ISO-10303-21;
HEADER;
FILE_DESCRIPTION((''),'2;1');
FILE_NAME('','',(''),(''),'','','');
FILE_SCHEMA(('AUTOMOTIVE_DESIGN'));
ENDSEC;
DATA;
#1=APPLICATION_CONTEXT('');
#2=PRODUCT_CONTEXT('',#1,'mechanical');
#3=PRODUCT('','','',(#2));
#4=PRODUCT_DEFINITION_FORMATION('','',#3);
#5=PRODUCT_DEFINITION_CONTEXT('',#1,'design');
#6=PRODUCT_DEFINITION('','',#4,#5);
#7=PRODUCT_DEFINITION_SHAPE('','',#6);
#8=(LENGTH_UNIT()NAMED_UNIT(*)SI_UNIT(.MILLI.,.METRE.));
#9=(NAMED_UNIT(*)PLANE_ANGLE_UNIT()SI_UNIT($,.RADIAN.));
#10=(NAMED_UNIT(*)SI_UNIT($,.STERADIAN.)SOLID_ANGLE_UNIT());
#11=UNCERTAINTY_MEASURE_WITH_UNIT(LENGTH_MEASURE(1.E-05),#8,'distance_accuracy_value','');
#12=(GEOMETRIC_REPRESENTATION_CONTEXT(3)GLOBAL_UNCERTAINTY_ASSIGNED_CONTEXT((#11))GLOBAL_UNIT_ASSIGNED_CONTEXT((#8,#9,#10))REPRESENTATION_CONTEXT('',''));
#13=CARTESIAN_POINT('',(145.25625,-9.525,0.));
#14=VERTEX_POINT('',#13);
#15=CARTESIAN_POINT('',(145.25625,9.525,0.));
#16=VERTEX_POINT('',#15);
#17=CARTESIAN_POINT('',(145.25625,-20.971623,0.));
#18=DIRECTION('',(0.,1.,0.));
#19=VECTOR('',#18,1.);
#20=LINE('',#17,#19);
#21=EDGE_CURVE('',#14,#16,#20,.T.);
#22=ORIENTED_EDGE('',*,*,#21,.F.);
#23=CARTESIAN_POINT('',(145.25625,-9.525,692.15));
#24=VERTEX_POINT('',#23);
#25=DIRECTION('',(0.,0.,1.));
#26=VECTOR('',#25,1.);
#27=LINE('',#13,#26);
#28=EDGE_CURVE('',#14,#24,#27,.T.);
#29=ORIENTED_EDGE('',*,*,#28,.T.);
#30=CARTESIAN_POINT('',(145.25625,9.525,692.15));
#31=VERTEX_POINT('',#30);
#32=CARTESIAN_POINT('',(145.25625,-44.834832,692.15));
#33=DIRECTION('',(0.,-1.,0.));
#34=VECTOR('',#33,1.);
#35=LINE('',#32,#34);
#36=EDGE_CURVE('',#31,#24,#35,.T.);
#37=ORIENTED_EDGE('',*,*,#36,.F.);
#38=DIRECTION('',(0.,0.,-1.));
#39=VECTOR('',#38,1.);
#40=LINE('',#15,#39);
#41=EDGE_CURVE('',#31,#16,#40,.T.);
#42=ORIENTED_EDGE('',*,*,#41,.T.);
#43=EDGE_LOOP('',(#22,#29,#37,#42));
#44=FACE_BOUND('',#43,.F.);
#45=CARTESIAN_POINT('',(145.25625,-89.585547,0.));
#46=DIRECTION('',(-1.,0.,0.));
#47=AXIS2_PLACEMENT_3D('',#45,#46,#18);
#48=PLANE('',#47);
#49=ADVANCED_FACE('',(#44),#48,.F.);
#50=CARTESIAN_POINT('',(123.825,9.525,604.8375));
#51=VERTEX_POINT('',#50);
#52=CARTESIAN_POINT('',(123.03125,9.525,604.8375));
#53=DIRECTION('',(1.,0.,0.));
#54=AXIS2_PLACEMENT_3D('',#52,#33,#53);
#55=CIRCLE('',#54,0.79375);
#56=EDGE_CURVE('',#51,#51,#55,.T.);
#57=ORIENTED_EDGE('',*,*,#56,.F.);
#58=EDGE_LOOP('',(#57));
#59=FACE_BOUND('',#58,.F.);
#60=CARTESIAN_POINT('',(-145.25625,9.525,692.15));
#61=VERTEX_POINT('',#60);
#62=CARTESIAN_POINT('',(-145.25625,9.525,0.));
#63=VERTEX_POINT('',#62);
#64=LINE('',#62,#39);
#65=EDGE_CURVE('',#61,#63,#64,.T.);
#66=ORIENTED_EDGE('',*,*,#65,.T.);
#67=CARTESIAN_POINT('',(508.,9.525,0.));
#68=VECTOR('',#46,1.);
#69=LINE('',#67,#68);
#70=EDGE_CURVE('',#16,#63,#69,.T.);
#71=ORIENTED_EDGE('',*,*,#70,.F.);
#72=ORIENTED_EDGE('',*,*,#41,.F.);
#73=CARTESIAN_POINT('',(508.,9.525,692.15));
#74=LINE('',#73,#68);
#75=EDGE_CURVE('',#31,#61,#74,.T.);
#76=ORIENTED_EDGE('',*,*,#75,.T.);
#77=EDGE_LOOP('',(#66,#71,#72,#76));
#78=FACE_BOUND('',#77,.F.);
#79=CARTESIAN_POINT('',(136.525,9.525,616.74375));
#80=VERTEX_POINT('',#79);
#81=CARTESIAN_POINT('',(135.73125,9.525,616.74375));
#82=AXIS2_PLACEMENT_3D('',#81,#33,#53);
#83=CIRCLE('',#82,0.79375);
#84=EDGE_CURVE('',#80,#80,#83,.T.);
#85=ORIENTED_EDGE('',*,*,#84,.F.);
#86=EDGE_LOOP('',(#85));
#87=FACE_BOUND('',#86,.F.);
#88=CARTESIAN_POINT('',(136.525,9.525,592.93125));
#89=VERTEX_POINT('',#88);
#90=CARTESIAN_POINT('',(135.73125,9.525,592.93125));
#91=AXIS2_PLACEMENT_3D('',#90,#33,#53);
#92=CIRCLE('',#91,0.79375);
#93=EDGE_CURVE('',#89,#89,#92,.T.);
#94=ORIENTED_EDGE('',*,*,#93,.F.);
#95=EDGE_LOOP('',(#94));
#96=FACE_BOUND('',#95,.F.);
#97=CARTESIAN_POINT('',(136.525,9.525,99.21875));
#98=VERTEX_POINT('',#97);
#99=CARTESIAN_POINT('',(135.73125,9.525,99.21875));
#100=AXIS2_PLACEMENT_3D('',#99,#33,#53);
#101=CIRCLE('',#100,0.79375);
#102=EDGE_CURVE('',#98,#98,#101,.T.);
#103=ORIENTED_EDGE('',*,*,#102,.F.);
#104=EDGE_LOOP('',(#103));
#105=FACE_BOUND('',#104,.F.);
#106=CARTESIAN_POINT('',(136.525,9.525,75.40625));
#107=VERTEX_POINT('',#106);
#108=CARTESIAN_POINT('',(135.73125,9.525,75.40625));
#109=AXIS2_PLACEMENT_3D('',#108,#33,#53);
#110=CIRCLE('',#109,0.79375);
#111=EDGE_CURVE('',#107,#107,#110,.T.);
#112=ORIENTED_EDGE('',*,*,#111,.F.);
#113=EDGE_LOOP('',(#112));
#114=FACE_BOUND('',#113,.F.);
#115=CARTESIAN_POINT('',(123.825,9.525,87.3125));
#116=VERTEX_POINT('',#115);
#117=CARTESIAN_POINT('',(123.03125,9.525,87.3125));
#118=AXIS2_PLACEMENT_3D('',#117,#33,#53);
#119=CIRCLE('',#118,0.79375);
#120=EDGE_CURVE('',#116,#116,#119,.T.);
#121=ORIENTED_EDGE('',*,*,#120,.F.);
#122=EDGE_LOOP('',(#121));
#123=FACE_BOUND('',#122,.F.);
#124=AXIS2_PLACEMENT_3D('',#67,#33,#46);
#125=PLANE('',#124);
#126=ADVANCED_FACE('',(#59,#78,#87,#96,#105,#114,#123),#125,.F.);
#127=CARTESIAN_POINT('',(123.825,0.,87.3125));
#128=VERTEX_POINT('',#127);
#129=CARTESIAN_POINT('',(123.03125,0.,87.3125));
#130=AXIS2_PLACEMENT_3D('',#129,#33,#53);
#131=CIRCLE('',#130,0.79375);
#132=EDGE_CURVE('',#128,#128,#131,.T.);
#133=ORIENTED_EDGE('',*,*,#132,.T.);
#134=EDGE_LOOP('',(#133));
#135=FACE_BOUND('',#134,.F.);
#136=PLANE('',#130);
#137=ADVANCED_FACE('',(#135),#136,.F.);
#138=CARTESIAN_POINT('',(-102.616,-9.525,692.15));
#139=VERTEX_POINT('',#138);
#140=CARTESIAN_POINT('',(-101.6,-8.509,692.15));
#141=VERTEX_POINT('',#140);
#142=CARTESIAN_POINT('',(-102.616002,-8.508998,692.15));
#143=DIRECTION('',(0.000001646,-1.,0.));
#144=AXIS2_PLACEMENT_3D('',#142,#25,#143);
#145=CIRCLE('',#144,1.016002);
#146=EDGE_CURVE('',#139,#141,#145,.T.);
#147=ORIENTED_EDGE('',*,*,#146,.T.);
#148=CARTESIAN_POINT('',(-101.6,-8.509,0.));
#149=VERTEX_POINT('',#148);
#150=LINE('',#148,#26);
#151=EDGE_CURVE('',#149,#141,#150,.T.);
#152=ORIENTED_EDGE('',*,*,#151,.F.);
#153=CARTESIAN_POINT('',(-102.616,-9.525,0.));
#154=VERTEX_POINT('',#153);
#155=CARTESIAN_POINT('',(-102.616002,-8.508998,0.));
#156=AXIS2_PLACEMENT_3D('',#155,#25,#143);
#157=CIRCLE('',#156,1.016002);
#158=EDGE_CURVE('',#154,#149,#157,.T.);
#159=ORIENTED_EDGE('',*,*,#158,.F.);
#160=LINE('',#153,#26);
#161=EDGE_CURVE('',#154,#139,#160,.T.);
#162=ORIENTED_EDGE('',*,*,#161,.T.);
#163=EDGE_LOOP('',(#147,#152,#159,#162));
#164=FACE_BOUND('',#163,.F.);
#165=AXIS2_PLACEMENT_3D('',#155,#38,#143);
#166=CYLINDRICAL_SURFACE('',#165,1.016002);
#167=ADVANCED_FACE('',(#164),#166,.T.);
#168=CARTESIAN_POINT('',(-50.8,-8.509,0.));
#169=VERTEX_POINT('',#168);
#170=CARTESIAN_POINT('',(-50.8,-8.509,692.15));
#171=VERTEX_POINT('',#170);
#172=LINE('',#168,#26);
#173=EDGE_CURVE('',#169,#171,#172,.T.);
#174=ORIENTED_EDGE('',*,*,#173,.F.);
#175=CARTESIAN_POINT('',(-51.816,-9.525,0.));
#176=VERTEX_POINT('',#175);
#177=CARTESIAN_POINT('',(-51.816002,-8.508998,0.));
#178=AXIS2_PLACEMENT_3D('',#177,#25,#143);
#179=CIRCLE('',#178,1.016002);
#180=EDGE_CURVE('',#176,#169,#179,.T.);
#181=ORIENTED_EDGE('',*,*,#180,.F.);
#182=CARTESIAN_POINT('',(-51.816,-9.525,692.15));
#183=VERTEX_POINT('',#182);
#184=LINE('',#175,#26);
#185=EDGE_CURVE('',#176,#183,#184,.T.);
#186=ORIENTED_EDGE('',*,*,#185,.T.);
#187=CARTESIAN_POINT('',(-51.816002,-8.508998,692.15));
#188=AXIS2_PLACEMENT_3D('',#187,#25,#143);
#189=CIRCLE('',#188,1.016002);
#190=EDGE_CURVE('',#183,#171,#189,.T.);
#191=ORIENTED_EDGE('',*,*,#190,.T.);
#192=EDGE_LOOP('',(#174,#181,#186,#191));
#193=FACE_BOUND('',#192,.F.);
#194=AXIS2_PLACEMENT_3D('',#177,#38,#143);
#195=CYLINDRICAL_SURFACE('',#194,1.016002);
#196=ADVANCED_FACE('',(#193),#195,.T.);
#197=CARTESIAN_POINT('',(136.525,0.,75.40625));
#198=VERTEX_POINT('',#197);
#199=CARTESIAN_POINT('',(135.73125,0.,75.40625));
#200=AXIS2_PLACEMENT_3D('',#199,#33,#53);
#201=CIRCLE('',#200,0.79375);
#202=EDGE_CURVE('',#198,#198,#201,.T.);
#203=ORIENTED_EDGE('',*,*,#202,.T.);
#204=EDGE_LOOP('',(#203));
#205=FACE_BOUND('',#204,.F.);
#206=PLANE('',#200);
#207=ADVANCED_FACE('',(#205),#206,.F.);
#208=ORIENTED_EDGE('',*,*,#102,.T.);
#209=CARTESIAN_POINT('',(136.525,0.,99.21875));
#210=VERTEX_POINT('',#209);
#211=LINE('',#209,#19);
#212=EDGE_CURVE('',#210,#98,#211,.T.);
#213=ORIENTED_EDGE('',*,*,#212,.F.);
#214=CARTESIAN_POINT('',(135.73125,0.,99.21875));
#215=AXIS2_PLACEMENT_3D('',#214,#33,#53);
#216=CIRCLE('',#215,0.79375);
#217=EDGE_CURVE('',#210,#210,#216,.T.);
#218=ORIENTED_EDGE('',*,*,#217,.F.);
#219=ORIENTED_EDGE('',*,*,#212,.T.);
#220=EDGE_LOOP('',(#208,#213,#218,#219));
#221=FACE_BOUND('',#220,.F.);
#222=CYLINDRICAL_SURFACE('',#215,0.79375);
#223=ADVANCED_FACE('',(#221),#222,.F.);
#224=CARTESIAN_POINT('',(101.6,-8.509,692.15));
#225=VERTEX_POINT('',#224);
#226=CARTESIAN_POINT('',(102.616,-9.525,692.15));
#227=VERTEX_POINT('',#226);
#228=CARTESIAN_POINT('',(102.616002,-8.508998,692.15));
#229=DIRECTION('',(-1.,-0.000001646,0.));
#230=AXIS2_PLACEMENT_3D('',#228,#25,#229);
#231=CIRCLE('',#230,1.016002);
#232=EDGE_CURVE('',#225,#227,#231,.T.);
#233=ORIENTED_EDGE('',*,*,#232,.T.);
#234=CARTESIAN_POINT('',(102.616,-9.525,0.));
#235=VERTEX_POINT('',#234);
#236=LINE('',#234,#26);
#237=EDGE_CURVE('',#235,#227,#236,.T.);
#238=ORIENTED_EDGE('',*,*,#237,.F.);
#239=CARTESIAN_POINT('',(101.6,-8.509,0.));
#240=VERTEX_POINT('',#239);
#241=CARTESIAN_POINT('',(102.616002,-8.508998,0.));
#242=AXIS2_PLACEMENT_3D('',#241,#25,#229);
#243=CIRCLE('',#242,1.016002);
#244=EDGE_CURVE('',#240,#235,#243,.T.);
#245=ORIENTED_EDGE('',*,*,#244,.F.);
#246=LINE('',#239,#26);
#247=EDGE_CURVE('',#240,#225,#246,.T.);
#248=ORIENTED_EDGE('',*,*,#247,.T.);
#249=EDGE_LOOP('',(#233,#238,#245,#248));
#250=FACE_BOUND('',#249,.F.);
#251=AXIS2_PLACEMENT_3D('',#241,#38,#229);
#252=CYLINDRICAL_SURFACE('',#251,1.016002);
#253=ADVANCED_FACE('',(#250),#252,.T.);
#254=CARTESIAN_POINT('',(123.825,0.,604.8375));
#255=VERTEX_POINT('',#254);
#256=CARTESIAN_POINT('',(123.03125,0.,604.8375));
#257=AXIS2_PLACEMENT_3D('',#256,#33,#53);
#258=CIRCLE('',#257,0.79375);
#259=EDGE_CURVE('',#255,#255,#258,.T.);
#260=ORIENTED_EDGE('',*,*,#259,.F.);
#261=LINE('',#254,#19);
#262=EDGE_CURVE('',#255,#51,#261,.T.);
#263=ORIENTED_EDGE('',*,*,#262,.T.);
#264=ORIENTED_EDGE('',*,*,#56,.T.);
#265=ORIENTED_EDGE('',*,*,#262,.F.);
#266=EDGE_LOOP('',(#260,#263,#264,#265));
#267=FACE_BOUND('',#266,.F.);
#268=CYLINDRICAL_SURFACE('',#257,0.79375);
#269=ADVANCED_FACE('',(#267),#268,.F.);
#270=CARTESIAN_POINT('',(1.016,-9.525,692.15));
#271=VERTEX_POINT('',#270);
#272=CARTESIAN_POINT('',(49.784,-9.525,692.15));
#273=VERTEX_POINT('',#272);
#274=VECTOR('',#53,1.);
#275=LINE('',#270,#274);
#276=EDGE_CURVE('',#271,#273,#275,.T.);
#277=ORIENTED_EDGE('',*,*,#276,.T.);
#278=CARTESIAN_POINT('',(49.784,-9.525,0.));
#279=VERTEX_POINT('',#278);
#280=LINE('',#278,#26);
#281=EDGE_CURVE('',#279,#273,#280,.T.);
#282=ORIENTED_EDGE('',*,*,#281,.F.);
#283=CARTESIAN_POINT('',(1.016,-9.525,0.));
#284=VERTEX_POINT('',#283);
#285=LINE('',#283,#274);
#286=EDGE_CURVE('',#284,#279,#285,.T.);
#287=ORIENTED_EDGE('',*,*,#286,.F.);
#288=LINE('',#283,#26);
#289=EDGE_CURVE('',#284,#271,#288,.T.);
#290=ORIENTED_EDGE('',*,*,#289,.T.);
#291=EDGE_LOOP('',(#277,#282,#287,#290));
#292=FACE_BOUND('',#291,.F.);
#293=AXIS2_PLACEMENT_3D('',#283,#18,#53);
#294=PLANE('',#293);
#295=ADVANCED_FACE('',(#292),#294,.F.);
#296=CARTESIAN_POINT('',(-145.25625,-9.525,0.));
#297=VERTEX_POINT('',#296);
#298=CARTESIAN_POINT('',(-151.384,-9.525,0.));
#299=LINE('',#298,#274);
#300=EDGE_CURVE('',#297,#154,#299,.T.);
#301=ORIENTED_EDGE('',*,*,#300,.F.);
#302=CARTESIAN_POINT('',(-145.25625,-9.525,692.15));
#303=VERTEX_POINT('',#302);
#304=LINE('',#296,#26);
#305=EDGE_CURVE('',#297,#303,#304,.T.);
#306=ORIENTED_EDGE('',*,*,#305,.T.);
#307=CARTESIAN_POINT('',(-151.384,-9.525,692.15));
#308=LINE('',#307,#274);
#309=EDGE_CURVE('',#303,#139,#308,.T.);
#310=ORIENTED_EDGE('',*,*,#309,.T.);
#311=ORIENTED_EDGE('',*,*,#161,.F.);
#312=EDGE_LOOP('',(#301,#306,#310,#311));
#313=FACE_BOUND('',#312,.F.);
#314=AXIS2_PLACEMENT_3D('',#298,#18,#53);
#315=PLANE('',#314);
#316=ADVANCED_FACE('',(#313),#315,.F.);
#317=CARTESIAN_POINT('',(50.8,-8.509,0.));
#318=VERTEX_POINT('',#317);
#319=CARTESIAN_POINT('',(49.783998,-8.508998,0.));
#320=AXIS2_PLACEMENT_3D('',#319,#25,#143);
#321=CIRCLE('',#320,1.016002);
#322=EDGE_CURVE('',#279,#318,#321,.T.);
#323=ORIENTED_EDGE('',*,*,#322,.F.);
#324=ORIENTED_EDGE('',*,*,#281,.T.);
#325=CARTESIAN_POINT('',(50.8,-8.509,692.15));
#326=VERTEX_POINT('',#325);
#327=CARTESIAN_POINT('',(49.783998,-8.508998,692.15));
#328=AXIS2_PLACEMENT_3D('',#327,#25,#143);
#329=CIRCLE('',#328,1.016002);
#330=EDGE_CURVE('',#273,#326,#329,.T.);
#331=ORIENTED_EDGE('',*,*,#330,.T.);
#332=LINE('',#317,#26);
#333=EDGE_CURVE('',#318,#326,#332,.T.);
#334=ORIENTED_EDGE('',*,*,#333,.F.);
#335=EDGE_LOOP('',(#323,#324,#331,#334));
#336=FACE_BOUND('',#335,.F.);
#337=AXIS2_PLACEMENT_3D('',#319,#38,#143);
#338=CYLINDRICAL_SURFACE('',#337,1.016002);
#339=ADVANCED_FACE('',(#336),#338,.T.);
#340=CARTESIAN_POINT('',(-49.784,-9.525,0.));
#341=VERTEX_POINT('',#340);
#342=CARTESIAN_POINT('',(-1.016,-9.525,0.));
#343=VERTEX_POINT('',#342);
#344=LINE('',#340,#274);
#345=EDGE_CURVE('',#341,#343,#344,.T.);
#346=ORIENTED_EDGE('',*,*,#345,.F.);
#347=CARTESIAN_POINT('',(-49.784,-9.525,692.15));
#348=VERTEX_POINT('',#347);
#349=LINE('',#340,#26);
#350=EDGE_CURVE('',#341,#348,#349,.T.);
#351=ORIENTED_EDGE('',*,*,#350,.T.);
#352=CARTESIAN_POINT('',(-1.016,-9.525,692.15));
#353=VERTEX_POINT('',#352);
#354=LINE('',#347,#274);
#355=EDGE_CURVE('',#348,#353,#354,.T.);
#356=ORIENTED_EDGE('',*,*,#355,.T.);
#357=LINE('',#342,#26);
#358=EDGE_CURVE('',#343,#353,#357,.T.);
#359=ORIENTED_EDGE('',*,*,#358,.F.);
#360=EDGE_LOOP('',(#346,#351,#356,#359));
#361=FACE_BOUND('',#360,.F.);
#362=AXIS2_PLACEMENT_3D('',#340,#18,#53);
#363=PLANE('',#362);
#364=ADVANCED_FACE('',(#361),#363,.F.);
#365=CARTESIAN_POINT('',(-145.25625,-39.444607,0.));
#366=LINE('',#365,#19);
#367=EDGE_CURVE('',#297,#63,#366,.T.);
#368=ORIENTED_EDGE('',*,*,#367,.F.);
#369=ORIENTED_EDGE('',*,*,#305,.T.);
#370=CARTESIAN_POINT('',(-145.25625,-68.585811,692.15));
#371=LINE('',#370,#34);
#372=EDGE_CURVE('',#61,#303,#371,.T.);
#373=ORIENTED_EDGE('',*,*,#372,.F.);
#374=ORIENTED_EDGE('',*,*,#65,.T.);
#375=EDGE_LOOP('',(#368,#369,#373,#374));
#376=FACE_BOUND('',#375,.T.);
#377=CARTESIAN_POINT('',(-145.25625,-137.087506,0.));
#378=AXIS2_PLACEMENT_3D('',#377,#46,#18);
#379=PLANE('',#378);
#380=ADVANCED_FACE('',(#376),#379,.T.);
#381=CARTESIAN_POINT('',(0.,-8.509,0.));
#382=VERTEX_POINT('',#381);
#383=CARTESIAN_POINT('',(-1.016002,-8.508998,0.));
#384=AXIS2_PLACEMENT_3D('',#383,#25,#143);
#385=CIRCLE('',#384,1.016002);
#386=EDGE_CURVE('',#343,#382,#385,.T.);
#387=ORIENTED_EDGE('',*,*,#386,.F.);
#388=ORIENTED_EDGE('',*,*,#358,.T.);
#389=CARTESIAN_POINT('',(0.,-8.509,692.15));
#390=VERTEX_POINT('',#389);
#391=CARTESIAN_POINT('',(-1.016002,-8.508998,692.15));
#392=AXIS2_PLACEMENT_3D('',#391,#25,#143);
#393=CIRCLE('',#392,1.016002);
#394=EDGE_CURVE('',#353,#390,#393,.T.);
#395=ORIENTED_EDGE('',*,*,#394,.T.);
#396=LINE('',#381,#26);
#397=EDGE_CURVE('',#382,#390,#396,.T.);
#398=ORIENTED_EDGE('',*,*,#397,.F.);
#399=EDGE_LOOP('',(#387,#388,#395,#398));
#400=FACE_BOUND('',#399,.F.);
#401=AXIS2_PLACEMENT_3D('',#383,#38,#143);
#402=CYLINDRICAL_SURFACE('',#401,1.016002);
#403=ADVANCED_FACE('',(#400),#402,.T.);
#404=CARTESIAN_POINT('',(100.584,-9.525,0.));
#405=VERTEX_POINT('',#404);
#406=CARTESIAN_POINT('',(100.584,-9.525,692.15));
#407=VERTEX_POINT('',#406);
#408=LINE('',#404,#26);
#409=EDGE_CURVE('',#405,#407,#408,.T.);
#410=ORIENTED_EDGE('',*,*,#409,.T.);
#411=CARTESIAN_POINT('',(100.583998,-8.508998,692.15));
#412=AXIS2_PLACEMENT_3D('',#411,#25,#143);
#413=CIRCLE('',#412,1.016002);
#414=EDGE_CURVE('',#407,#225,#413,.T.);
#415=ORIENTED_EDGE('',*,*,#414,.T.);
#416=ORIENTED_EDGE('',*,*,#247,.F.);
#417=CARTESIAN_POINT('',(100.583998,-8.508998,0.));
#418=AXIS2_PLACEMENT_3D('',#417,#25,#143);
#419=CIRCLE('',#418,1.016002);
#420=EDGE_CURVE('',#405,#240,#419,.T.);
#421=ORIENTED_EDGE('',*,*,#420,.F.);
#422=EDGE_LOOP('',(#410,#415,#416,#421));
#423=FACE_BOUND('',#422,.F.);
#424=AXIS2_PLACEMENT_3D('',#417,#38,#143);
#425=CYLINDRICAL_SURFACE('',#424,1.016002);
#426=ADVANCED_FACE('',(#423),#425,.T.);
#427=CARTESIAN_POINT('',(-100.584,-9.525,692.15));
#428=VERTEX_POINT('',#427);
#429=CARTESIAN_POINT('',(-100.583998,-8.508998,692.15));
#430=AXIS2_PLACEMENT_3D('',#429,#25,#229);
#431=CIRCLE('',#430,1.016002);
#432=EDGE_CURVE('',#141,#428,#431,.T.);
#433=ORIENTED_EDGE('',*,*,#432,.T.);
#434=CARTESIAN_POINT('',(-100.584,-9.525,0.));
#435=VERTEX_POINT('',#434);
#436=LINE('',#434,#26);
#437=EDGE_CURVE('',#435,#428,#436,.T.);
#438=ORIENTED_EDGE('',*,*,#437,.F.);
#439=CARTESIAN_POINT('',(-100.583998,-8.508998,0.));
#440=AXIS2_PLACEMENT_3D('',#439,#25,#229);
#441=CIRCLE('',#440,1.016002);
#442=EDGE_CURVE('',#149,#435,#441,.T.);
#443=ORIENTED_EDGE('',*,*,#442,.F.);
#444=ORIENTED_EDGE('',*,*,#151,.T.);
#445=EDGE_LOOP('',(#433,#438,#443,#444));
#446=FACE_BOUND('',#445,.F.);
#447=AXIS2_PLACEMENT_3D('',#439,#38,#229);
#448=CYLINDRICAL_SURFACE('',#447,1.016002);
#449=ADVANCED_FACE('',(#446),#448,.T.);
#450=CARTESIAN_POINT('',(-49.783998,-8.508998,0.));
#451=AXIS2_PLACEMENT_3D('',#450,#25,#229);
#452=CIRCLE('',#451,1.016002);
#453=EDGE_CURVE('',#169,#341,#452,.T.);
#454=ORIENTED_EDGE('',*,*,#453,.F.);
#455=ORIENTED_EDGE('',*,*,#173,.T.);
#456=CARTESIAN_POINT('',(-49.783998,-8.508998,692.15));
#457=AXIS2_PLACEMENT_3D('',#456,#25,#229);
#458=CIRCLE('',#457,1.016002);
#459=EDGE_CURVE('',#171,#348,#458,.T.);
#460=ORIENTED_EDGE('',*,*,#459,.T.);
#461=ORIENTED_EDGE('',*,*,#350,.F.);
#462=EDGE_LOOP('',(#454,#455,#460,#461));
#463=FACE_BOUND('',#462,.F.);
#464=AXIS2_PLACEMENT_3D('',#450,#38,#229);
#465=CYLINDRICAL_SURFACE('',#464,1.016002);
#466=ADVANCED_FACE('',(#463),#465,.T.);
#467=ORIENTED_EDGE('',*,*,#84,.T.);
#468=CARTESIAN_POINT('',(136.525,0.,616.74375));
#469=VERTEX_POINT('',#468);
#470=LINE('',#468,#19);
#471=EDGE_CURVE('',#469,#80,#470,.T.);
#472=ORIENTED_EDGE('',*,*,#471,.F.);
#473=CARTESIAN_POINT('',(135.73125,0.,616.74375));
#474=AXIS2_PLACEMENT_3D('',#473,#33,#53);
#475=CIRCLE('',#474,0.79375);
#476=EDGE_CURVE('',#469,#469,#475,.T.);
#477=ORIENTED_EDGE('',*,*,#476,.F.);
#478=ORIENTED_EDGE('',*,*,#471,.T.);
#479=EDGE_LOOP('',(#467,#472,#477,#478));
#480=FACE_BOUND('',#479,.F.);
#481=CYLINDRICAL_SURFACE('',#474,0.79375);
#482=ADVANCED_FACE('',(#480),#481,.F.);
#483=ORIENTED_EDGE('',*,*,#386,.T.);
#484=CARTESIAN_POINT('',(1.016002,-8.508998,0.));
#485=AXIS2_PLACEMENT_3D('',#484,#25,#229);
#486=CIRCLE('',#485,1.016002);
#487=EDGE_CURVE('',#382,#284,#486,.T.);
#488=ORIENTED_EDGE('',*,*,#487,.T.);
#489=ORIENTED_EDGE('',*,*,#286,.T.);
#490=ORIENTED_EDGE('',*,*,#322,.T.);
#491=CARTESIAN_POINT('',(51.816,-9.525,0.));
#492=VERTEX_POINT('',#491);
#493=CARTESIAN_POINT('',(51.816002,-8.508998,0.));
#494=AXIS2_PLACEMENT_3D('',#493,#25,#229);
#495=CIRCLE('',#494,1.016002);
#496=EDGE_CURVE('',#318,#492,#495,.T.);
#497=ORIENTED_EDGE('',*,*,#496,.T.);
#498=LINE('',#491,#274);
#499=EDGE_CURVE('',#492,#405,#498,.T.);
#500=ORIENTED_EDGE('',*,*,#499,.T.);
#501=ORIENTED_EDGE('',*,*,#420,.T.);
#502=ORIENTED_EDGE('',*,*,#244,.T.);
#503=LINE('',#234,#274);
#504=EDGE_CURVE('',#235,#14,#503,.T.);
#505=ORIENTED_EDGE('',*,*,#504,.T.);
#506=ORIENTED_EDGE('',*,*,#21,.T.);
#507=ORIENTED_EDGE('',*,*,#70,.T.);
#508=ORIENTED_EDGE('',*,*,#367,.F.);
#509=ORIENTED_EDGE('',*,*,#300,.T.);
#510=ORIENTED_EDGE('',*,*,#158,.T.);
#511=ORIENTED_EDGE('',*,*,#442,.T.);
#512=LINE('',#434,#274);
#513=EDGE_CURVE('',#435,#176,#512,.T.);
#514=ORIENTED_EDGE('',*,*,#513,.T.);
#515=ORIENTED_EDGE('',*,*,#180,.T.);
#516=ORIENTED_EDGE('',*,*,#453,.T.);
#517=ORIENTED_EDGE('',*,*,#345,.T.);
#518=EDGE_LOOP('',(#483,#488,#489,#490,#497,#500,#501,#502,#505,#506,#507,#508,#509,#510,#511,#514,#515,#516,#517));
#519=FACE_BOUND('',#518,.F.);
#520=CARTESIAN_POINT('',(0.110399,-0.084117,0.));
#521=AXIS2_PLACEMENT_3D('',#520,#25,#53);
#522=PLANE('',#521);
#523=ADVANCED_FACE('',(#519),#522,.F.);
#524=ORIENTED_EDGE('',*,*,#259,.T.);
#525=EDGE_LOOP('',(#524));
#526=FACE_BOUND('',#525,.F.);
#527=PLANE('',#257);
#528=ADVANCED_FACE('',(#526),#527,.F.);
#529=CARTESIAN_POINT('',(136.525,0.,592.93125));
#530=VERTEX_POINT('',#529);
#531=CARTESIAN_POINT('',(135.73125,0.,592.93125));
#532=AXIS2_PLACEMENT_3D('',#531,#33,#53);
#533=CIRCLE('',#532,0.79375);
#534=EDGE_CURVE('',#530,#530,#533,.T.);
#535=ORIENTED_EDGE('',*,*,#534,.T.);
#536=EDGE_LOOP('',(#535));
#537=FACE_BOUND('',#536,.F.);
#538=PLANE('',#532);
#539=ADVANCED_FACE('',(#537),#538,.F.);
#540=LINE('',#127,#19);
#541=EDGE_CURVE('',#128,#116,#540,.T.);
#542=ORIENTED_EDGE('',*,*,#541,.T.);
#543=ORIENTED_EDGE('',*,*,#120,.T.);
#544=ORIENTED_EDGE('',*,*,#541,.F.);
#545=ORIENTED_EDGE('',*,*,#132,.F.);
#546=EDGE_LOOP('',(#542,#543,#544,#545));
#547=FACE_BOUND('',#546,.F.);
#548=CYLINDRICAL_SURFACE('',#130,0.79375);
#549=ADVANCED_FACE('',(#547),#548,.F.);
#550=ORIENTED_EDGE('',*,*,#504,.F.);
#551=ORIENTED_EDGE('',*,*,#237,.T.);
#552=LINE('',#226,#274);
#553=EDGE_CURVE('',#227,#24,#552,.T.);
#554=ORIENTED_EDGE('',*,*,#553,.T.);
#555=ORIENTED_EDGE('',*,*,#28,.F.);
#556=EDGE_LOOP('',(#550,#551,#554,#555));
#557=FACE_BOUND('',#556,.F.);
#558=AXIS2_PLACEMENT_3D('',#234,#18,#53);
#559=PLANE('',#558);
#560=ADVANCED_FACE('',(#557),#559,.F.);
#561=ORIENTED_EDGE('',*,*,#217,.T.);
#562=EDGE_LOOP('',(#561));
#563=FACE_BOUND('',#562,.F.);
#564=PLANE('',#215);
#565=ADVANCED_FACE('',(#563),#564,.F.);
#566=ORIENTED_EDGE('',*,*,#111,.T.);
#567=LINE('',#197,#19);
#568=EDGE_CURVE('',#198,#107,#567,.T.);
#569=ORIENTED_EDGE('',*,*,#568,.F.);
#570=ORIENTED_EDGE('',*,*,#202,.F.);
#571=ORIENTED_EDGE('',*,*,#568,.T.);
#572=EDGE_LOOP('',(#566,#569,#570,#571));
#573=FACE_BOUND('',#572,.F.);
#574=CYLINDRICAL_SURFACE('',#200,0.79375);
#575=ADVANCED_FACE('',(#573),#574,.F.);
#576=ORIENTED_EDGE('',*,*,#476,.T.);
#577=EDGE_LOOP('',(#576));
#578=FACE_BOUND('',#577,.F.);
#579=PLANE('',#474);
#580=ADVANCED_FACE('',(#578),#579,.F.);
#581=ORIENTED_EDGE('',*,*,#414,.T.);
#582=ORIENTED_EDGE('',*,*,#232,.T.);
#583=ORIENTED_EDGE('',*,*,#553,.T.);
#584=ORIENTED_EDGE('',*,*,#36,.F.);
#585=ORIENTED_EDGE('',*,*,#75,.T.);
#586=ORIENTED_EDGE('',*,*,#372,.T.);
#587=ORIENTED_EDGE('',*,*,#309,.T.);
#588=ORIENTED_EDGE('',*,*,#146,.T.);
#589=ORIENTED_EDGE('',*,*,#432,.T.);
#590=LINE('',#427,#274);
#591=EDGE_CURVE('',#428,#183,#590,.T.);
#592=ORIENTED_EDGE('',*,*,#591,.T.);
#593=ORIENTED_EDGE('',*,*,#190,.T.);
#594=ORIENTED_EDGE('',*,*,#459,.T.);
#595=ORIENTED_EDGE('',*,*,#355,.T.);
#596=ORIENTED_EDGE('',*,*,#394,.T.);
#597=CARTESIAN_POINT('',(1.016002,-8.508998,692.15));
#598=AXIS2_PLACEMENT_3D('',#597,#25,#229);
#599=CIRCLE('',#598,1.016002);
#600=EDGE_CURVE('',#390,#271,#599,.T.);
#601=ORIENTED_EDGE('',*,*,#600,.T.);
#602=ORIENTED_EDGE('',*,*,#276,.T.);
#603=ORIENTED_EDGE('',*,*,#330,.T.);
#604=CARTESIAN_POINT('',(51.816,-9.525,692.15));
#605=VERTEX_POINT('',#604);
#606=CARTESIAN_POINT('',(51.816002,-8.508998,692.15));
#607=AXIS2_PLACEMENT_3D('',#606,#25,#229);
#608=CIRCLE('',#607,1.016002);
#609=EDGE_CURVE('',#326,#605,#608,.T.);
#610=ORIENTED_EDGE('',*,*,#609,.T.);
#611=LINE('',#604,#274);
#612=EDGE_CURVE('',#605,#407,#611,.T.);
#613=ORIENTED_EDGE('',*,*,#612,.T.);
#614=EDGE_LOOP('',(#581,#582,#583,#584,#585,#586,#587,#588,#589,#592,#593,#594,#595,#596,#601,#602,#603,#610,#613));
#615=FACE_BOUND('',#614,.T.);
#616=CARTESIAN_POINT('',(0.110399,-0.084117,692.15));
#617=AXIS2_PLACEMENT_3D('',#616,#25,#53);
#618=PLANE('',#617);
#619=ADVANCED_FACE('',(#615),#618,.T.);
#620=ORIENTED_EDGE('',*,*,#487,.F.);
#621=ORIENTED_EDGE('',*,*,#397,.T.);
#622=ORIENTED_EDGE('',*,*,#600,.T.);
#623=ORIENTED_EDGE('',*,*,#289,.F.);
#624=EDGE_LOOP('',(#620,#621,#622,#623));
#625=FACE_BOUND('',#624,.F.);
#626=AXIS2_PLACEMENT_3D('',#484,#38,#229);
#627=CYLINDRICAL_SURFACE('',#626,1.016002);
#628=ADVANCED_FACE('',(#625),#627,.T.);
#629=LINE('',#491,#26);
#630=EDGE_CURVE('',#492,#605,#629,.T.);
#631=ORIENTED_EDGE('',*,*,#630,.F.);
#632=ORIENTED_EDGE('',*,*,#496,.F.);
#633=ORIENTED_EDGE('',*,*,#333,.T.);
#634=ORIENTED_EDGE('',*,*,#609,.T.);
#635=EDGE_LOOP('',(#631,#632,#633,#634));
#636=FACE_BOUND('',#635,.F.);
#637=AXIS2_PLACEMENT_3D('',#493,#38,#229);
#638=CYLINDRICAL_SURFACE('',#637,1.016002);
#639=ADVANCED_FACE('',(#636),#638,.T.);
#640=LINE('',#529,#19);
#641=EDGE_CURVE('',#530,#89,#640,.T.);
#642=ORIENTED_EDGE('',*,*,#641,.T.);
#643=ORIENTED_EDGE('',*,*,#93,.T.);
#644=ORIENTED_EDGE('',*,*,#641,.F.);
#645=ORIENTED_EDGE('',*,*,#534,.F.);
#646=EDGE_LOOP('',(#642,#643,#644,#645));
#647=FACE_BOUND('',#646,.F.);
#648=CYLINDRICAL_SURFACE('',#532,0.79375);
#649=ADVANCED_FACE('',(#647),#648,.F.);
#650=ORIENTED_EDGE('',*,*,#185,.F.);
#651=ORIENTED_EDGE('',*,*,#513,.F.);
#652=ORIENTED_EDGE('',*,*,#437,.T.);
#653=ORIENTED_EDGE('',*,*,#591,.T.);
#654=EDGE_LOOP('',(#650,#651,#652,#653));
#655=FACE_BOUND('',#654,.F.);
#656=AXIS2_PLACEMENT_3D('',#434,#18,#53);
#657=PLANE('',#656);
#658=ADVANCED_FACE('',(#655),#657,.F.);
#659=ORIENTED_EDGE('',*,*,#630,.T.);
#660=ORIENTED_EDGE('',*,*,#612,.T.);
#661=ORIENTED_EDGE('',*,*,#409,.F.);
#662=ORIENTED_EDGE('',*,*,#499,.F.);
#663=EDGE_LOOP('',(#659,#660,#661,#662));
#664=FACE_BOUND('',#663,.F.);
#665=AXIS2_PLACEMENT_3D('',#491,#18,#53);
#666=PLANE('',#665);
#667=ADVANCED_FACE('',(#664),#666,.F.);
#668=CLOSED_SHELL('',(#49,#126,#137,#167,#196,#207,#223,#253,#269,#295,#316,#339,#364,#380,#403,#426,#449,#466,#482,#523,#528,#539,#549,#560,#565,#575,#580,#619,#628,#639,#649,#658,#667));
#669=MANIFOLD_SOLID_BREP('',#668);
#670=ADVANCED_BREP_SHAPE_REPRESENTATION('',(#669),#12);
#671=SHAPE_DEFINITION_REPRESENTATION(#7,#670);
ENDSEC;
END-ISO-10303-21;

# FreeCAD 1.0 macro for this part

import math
import FreeCAD as App
import Part
import Sketcher

V = App.Vector
Q = App.Units.Quantity


def add_polygon(sketch, points):
    """Adds a closed chain of lines whose ends are joined by coincident constraints."""
    first, n = sketch.GeometryCount, len(points)
    for a, b in zip(points, points[1:] + points[:1]):
        sketch.addGeometry(Part.LineSegment(App.Vector(*a, 0), App.Vector(*b, 0)), False)
    for i in range(n):
        sketch.addConstraint(Sketcher.Constraint("Coincident", first + i, 2, first + (i + 1) % n, 1))

doc = App.newDocument("Part")
body = doc.addObject("PartDesign::Body", "Body")

sketch1 = body.newObject("Sketcher::SketchObject", "Sketch")
sketch1.AttachmentSupport = (doc.getObject("XY_Plane"), [""])
sketch1.MapMode = "FlatFace"
sketch1.addGeometry(Part.LineSegment(V(458.2, -9.5, 0), V(508, -9.5, 0)), False)
sketch1.addGeometry(Part.LineSegment(V(508, -9.5, 0), V(508, 9.5, 0)), False)
sketch1.addGeometry(Part.LineSegment(V(508, 9.5, 0), V(-508, 9.5, 0)), False)
sketch1.addGeometry(Part.LineSegment(V(-508, 9.5, 0), V(-508, -9.5, 0)), False)
sketch1.addGeometry(Part.LineSegment(V(-508, -9.5, 0), V(-458.2, -9.5, 0)), False)
sketch1.addGeometry(Part.ArcOfCircle(Part.Circle(V(-458.2, -8.5, 0), V(0, 0, 1), 1), math.radians(-90), math.radians(0)), False)
sketch1.addGeometry(Part.ArcOfCircle(Part.Circle(V(-456.2, -8.5, 0), V(0, 0, 1), 1), math.radians(-180), math.radians(-90)), False)
sketch1.addGeometry(Part.LineSegment(V(-456.2, -9.5, 0), V(-407.4, -9.5, 0)), False)
sketch1.addGeometry(Part.ArcOfCircle(Part.Circle(V(-407.4, -8.5, 0), V(0, 0, 1), 1), math.radians(-90), math.radians(0)), False)
sketch1.addGeometry(Part.ArcOfCircle(Part.Circle(V(-405.4, -8.5, 0), V(0, 0, 1), 1), math.radians(-180), math.radians(-90)), False)
sketch1.addGeometry(Part.LineSegment(V(-405.4, -9.5, 0), V(-356.6, -9.5, 0)), False)
sketch1.addGeometry(Part.ArcOfCircle(Part.Circle(V(-356.6, -8.5, 0), V(0, 0, 1), 1), math.radians(-90), math.radians(0)), False)
sketch1.addGeometry(Part.ArcOfCircle(Part.Circle(V(-354.6, -8.5, 0), V(0, 0, 1), 1), math.radians(-180), math.radians(-90)), False)
sketch1.addGeometry(Part.LineSegment(V(-354.6, -9.5, 0), V(-305.8, -9.5, 0)), False)
sketch1.addGeometry(Part.ArcOfCircle(Part.Circle(V(-305.8, -8.5, 0), V(0, 0, 1), 1), math.radians(-90), math.radians(0)), False)
sketch1.addGeometry(Part.ArcOfCircle(Part.Circle(V(-303.8, -8.5, 0), V(0, 0, 1), 1), math.radians(-180), math.radians(-90)), False)
sketch1.addGeometry(Part.LineSegment(V(-303.8, -9.5, 0), V(-255, -9.5, 0)), False)
sketch1.addGeometry(Part.ArcOfCircle(Part.Circle(V(-255, -8.5, 0), V(0, 0, 1), 1), math.radians(-90), math.radians(0)), False)
sketch1.addGeometry(Part.ArcOfCircle(Part.Circle(V(-253, -8.5, 0), V(0, 0, 1), 1), math.radians(-180), math.radians(-90)), False)
sketch1.addGeometry(Part.LineSegment(V(-253, -9.5, 0), V(-204.2, -9.5, 0)), False)
sketch1.addGeometry(Part.ArcOfCircle(Part.Circle(V(-204.2, -8.5, 0), V(0, 0, 1), 1), math.radians(-90), math.radians(0)), False)
sketch1.addGeometry(Part.ArcOfCircle(Part.Circle(V(-202.2, -8.5, 0), V(0, 0, 1), 1), math.radians(-180), math.radians(-90)), False)
sketch1.addGeometry(Part.LineSegment(V(-202.2, -9.5, 0), V(-153.4, -9.5, 0)), False)
sketch1.addGeometry(Part.ArcOfCircle(Part.Circle(V(-153.4, -8.5, 0), V(0, 0, 1), 1), math.radians(-90), math.radians(0)), False)
sketch1.addGeometry(Part.ArcOfCircle(Part.Circle(V(-151.4, -8.5, 0), V(0, 0, 1), 1), math.radians(-180), math.radians(-90)), False)
sketch1.addGeometry(Part.LineSegment(V(-151.4, -9.5, 0), V(-102.6, -9.5, 0)), False)
sketch1.addGeometry(Part.ArcOfCircle(Part.Circle(V(-102.6, -8.5, 0), V(0, 0, 1), 1), math.radians(-90), math.radians(0)), False)
sketch1.addGeometry(Part.ArcOfCircle(Part.Circle(V(-100.6, -8.5, 0), V(0, 0, 1), 1), math.radians(-180), math.radians(-90)), False)
sketch1.addGeometry(Part.LineSegment(V(-100.6, -9.5, 0), V(-51.8, -9.5, 0)), False)
sketch1.addGeometry(Part.ArcOfCircle(Part.Circle(V(-51.8, -8.5, 0), V(0, 0, 1), 1), math.radians(-90), math.radians(0)), False)
sketch1.addGeometry(Part.ArcOfCircle(Part.Circle(V(-49.8, -8.5, 0), V(0, 0, 1), 1), math.radians(-180), math.radians(-90)), False)
sketch1.addGeometry(Part.LineSegment(V(-49.8, -9.5, 0), V(-1, -9.5, 0)), False)
sketch1.addGeometry(Part.ArcOfCircle(Part.Circle(V(-1, -8.5, 0), V(0, 0, 1), 1), math.radians(-90), math.radians(0)), False)
sketch1.addGeometry(Part.ArcOfCircle(Part.Circle(V(1, -8.5, 0), V(0, 0, 1), 1), math.radians(-180), math.radians(-90)), False)
sketch1.addGeometry(Part.LineSegment(V(1, -9.5, 0), V(49.8, -9.5, 0)), False)
sketch1.addGeometry(Part.ArcOfCircle(Part.Circle(V(49.8, -8.5, 0), V(0, 0, 1), 1), math.radians(-90), math.radians(0)), False)
sketch1.addGeometry(Part.ArcOfCircle(Part.Circle(V(51.8, -8.5, 0), V(0, 0, 1), 1), math.radians(-180), math.radians(-90)), False)
sketch1.addGeometry(Part.LineSegment(V(51.8, -9.5, 0), V(100.6, -9.5, 0)), False)
sketch1.addGeometry(Part.ArcOfCircle(Part.Circle(V(100.6, -8.5, 0), V(0, 0, 1), 1), math.radians(-90), math.radians(0)), False)
sketch1.addGeometry(Part.ArcOfCircle(Part.Circle(V(102.6, -8.5, 0), V(0, 0, 1), 1), math.radians(-180), math.radians(-90)), False)
sketch1.addGeometry(Part.LineSegment(V(102.6, -9.5, 0), V(151.4, -9.5, 0)), False)
sketch1.addGeometry(Part.ArcOfCircle(Part.Circle(V(151.4, -8.5, 0), V(0, 0, 1), 1), math.radians(-90), math.radians(0)), False)
sketch1.addGeometry(Part.ArcOfCircle(Part.Circle(V(153.4, -8.5, 0), V(0, 0, 1), 1), math.radians(-180), math.radians(-90)), False)
sketch1.addGeometry(Part.LineSegment(V(153.4, -9.5, 0), V(202.2, -9.5, 0)), False)
sketch1.addGeometry(Part.ArcOfCircle(Part.Circle(V(202.2, -8.5, 0), V(0, 0, 1), 1), math.radians(-90), math.radians(0)), False)
sketch1.addGeometry(Part.ArcOfCircle(Part.Circle(V(204.2, -8.5, 0), V(0, 0, 1), 1), math.radians(-180), math.radians(-90)), False)
sketch1.addGeometry(Part.LineSegment(V(204.2, -9.5, 0), V(253, -9.5, 0)), False)
sketch1.addGeometry(Part.ArcOfCircle(Part.Circle(V(253, -8.5, 0), V(0, 0, 1), 1), math.radians(-90), math.radians(0)), False)
sketch1.addGeometry(Part.ArcOfCircle(Part.Circle(V(255, -8.5, 0), V(0, 0, 1), 1), math.radians(-180), math.radians(-90)), False)
sketch1.addGeometry(Part.LineSegment(V(255, -9.5, 0), V(303.8, -9.5, 0)), False)
sketch1.addGeometry(Part.ArcOfCircle(Part.Circle(V(303.8, -8.5, 0), V(0, 0, 1), 1), math.radians(-90), math.radians(0)), False)
sketch1.addGeometry(Part.ArcOfCircle(Part.Circle(V(305.8, -8.5, 0), V(0, 0, 1), 1), math.radians(-180), math.radians(-90)), False)
sketch1.addGeometry(Part.LineSegment(V(305.8, -9.5, 0), V(354.6, -9.5, 0)), False)
sketch1.addGeometry(Part.ArcOfCircle(Part.Circle(V(354.6, -8.5, 0), V(0, 0, 1), 1), math.radians(-90), math.radians(0)), False)
sketch1.addGeometry(Part.ArcOfCircle(Part.Circle(V(356.6, -8.5, 0), V(0, 0, 1), 1), math.radians(-180), math.radians(-90)), False)
sketch1.addGeometry(Part.LineSegment(V(356.6, -9.5, 0), V(405.4, -9.5, 0)), False)
sketch1.addGeometry(Part.ArcOfCircle(Part.Circle(V(405.4, -8.5, 0), V(0, 0, 1), 1), math.radians(-90), math.radians(0)), False)
sketch1.addGeometry(Part.ArcOfCircle(Part.Circle(V(407.4, -8.5, 0), V(0, 0, 1), 1), math.radians(-180), math.radians(-90)), False)
sketch1.addGeometry(Part.LineSegment(V(407.4, -9.5, 0), V(456.2, -9.5, 0)), False)
sketch1.addGeometry(Part.ArcOfCircle(Part.Circle(V(456.2, -8.5, 0), V(0, 0, 1), 1), math.radians(-90), math.radians(0)), False)
sketch1.addGeometry(Part.ArcOfCircle(Part.Circle(V(458.2, -8.5, 0), V(0, 0, 1), 1), math.radians(-180), math.radians(-90)), False)
sketch1.addConstraint(Sketcher.Constraint("Coincident", 0, 2, 1, 1))
sketch1.addConstraint(Sketcher.Constraint("Coincident", 1, 2, 2, 1))
sketch1.addConstraint(Sketcher.Constraint("Coincident", 2, 2, 3, 1))
sketch1.addConstraint(Sketcher.Constraint("Coincident", 3, 2, 4, 1))
sketch1.addConstraint(Sketcher.Constraint("Tangent", 4, 2, 5, 1))
sketch1.addConstraint(Sketcher.Constraint("Coincident", 5, 2, 6, 1))
sketch1.addConstraint(Sketcher.Constraint("Tangent", 6, 2, 7, 1))
sketch1.addConstraint(Sketcher.Constraint("Tangent", 7, 2, 8, 1))
sketch1.addConstraint(Sketcher.Constraint("Coincident", 8, 2, 9, 1))
sketch1.addConstraint(Sketcher.Constraint("Tangent", 9, 2, 10, 1))
sketch1.addConstraint(Sketcher.Constraint("Tangent", 10, 2, 11, 1))
sketch1.addConstraint(Sketcher.Constraint("Coincident", 11, 2, 12, 1))
sketch1.addConstraint(Sketcher.Constraint("Tangent", 12, 2, 13, 1))
sketch1.addConstraint(Sketcher.Constraint("Tangent", 13, 2, 14, 1))
sketch1.addConstraint(Sketcher.Constraint("Coincident", 14, 2, 15, 1))
sketch1.addConstraint(Sketcher.Constraint("Tangent", 15, 2, 16, 1))
sketch1.addConstraint(Sketcher.Constraint("Tangent", 16, 2, 17, 1))
sketch1.addConstraint(Sketcher.Constraint("Coincident", 17, 2, 18, 1))
sketch1.addConstraint(Sketcher.Constraint("Tangent", 18, 2, 19, 1))
sketch1.addConstraint(Sketcher.Constraint("Tangent", 19, 2, 20, 1))
sketch1.addConstraint(Sketcher.Constraint("Coincident", 20, 2, 21, 1))
sketch1.addConstraint(Sketcher.Constraint("Tangent", 21, 2, 22, 1))
sketch1.addConstraint(Sketcher.Constraint("Tangent", 22, 2, 23, 1))
sketch1.addConstraint(Sketcher.Constraint("Coincident", 23, 2, 24, 1))
sketch1.addConstraint(Sketcher.Constraint("Tangent", 24, 2, 25, 1))
sketch1.addConstraint(Sketcher.Constraint("Tangent", 25, 2, 26, 1))
sketch1.addConstraint(Sketcher.Constraint("Coincident", 26, 2, 27, 1))
sketch1.addConstraint(Sketcher.Constraint("Tangent", 27, 2, 28, 1))
sketch1.addConstraint(Sketcher.Constraint("Tangent", 28, 2, 29, 1))
sketch1.addConstraint(Sketcher.Constraint("Coincident", 29, 2, 30, 1))
sketch1.addConstraint(Sketcher.Constraint("Tangent", 30, 2, 31, 1))
sketch1.addConstraint(Sketcher.Constraint("Tangent", 31, 2, 32, 1))
sketch1.addConstraint(Sketcher.Constraint("Coincident", 32, 2, 33, 1))
sketch1.addConstraint(Sketcher.Constraint("Tangent", 33, 2, 34, 1))
sketch1.addConstraint(Sketcher.Constraint("Tangent", 34, 2, 35, 1))
sketch1.addConstraint(Sketcher.Constraint("Coincident", 35, 2, 36, 1))
sketch1.addConstraint(Sketcher.Constraint("Tangent", 36, 2, 37, 1))
sketch1.addConstraint(Sketcher.Constraint("Tangent", 37, 2, 38, 1))
sketch1.addConstraint(Sketcher.Constraint("Coincident", 38, 2, 39, 1))
sketch1.addConstraint(Sketcher.Constraint("Tangent", 39, 2, 40, 1))
sketch1.addConstraint(Sketcher.Constraint("Tangent", 40, 2, 41, 1))
sketch1.addConstraint(Sketcher.Constraint("Coincident", 41, 2, 42, 1))
sketch1.addConstraint(Sketcher.Constraint("Tangent", 42, 2, 43, 1))
sketch1.addConstraint(Sketcher.Constraint("Tangent", 43, 2, 44, 1))
sketch1.addConstraint(Sketcher.Constraint("Coincident", 44, 2, 45, 1))
sketch1.addConstraint(Sketcher.Constraint("Tangent", 45, 2, 46, 1))
sketch1.addConstraint(Sketcher.Constraint("Tangent", 46, 2, 47, 1))
sketch1.addConstraint(Sketcher.Constraint("Coincident", 47, 2, 48, 1))
sketch1.addConstraint(Sketcher.Constraint("Tangent", 48, 2, 49, 1))
sketch1.addConstraint(Sketcher.Constraint("Tangent", 49, 2, 50, 1))
sketch1.addConstraint(Sketcher.Constraint("Coincident", 50, 2, 51, 1))
sketch1.addConstraint(Sketcher.Constraint("Tangent", 51, 2, 52, 1))
sketch1.addConstraint(Sketcher.Constraint("Tangent", 52, 2, 53, 1))
sketch1.addConstraint(Sketcher.Constraint("Coincident", 53, 2, 54, 1))
sketch1.addConstraint(Sketcher.Constraint("Tangent", 54, 2, 55, 1))
sketch1.addConstraint(Sketcher.Constraint("Tangent", 55, 2, 56, 1))
sketch1.addConstraint(Sketcher.Constraint("Coincident", 56, 2, 57, 1))
sketch1.addConstraint(Sketcher.Constraint("Tangent", 57, 2, 58, 1))
sketch1.addConstraint(Sketcher.Constraint("Tangent", 58, 2, 59, 1))
sketch1.addConstraint(Sketcher.Constraint("Coincident", 59, 2, 60, 1))
sketch1.addConstraint(Sketcher.Constraint("Tangent", 60, 2, 0, 1))
sketch1.addConstraint(Sketcher.Constraint("Horizontal", 0))
sketch1.addConstraint(Sketcher.Constraint("Vertical", 1))
sketch1.addConstraint(Sketcher.Constraint("Horizontal", 2))
sketch1.addConstraint(Sketcher.Constraint("Vertical", 3))
sketch1.addConstraint(Sketcher.Constraint("Horizontal", 4))
sketch1.addConstraint(Sketcher.Constraint("Horizontal", 7))
sketch1.addConstraint(Sketcher.Constraint("Horizontal", 10))
sketch1.addConstraint(Sketcher.Constraint("Horizontal", 13))
sketch1.addConstraint(Sketcher.Constraint("Horizontal", 16))
sketch1.addConstraint(Sketcher.Constraint("Horizontal", 19))
sketch1.addConstraint(Sketcher.Constraint("Horizontal", 22))
sketch1.addConstraint(Sketcher.Constraint("Horizontal", 25))
sketch1.addConstraint(Sketcher.Constraint("Horizontal", 28))
sketch1.addConstraint(Sketcher.Constraint("Horizontal", 31))
sketch1.addConstraint(Sketcher.Constraint("Horizontal", 34))
sketch1.addConstraint(Sketcher.Constraint("Horizontal", 37))
sketch1.addConstraint(Sketcher.Constraint("Horizontal", 40))
sketch1.addConstraint(Sketcher.Constraint("Horizontal", 43))
sketch1.addConstraint(Sketcher.Constraint("Horizontal", 46))
sketch1.addConstraint(Sketcher.Constraint("Horizontal", 49))
sketch1.addConstraint(Sketcher.Constraint("Horizontal", 52))
sketch1.addConstraint(Sketcher.Constraint("Horizontal", 55))
sketch1.addConstraint(Sketcher.Constraint("Horizontal", 58))
sketch1.addConstraint(Sketcher.Constraint("Equal", 5, 6))
sketch1.addConstraint(Sketcher.Constraint("Equal", 6, 8))
sketch1.addConstraint(Sketcher.Constraint("Equal", 8, 9))
sketch1.addConstraint(Sketcher.Constraint("Equal", 9, 11))
sketch1.addConstraint(Sketcher.Constraint("Equal", 11, 12))
sketch1.addConstraint(Sketcher.Constraint("Equal", 12, 14))
sketch1.addConstraint(Sketcher.Constraint("Equal", 14, 15))
sketch1.addConstraint(Sketcher.Constraint("Equal", 15, 17))
sketch1.addConstraint(Sketcher.Constraint("Equal", 17, 18))
sketch1.addConstraint(Sketcher.Constraint("Equal", 18, 20))
sketch1.addConstraint(Sketcher.Constraint("Equal", 20, 21))
sketch1.addConstraint(Sketcher.Constraint("Equal", 21, 23))
sketch1.addConstraint(Sketcher.Constraint("Equal", 23, 24))
sketch1.addConstraint(Sketcher.Constraint("Equal", 24, 26))
sketch1.addConstraint(Sketcher.Constraint("Equal", 26, 27))
sketch1.addConstraint(Sketcher.Constraint("Equal", 27, 29))
sketch1.addConstraint(Sketcher.Constraint("Equal", 29, 30))
sketch1.addConstraint(Sketcher.Constraint("Equal", 30, 32))
sketch1.addConstraint(Sketcher.Constraint("Equal", 32, 33))
sketch1.addConstraint(Sketcher.Constraint("Equal", 33, 35))
sketch1.addConstraint(Sketcher.Constraint("Equal", 35, 36))
sketch1.addConstraint(Sketcher.Constraint("Equal", 36, 38))
sketch1.addConstraint(Sketcher.Constraint("Equal", 38, 39))
sketch1.addConstraint(Sketcher.Constraint("Equal", 39, 41))
sketch1.addConstraint(Sketcher.Constraint("Equal", 41, 42))
sketch1.addConstraint(Sketcher.Constraint("Equal", 42, 44))
sketch1.addConstraint(Sketcher.Constraint("Equal", 44, 45))
sketch1.addConstraint(Sketcher.Constraint("Equal", 45, 47))
sketch1.addConstraint(Sketcher.Constraint("Equal", 47, 48))
sketch1.addConstraint(Sketcher.Constraint("Equal", 48, 50))
sketch1.addConstraint(Sketcher.Constraint("Equal", 50, 51))
sketch1.addConstraint(Sketcher.Constraint("Equal", 51, 53))
sketch1.addConstraint(Sketcher.Constraint("Equal", 53, 54))
sketch1.addConstraint(Sketcher.Constraint("Equal", 54, 56))
sketch1.addConstraint(Sketcher.Constraint("Equal", 56, 57))
sketch1.addConstraint(Sketcher.Constraint("Equal", 57, 59))
sketch1.addConstraint(Sketcher.Constraint("Equal", 59, 60))
sketch1.addConstraint(Sketcher.Constraint("Symmetric", 0, 2, 2, 2, -1, 1))
sketch1.addConstraint(Sketcher.Constraint("Symmetric", 32, 3, 33, 3, -2))
sketch1.addConstraint(Sketcher.Constraint("Symmetric", 29, 3, 36, 3, -2))
sketch1.addConstraint(Sketcher.Constraint("Symmetric", 26, 3, 39, 3, -2))
sketch1.addConstraint(Sketcher.Constraint("Symmetric", 23, 3, 42, 3, -2))
sketch1.addConstraint(Sketcher.Constraint("Symmetric", 20, 3, 45, 3, -2))
sketch1.addConstraint(Sketcher.Constraint("Symmetric", 17, 3, 48, 3, -2))
sketch1.addConstraint(Sketcher.Constraint("Symmetric", 14, 3, 51, 3, -2))
sketch1.addConstraint(Sketcher.Constraint("Symmetric", 11, 3, 54, 3, -2))
sketch1.addConstraint(Sketcher.Constraint("Symmetric", 8, 3, 57, 3, -2))
sketch1.addConstraint(Sketcher.Constraint("Symmetric", 5, 3, 60, 3, -2))
sketch1.addConstraint(Sketcher.Constraint("Horizontal", 5, 3, 6, 3))
sketch1.addConstraint(Sketcher.Constraint("Horizontal", 8, 3, 9, 3))
sketch1.addConstraint(Sketcher.Constraint("Horizontal", 11, 3, 12, 3))
sketch1.addConstraint(Sketcher.Constraint("Horizontal", 14, 3, 15, 3))
sketch1.addConstraint(Sketcher.Constraint("Horizontal", 17, 3, 18, 3))
sketch1.addConstraint(Sketcher.Constraint("Horizontal", 20, 3, 21, 3))
sketch1.addConstraint(Sketcher.Constraint("Horizontal", 23, 3, 24, 3))
sketch1.addConstraint(Sketcher.Constraint("Horizontal", 26, 3, 27, 3))
sketch1.addConstraint(Sketcher.Constraint("Horizontal", 29, 3, 30, 3))
sketch1.addConstraint(Sketcher.Constraint("Horizontal", 60, 3, 5, 2))
sketch1.addConstraint(Sketcher.Constraint("Horizontal", 5, 2, 8, 2))
sketch1.addConstraint(Sketcher.Constraint("Horizontal", 8, 2, 11, 2))
sketch1.addConstraint(Sketcher.Constraint("Horizontal", 11, 2, 14, 2))
sketch1.addConstraint(Sketcher.Constraint("Horizontal", 14, 2, 17, 2))
sketch1.addConstraint(Sketcher.Constraint("Horizontal", 17, 2, 20, 2))
sketch1.addConstraint(Sketcher.Constraint("Horizontal", 20, 2, 23, 2))
sketch1.addConstraint(Sketcher.Constraint("Horizontal", 23, 2, 26, 2))
sketch1.addConstraint(Sketcher.Constraint("Horizontal", 26, 2, 29, 2))
sketch1.addConstraint(Sketcher.Constraint("Horizontal", 29, 2, 32, 2))
sketch1.addConstraint(Sketcher.Constraint("Horizontal", 32, 2, 35, 2))
sketch1.addConstraint(Sketcher.Constraint("Horizontal", 35, 2, 38, 2))
sketch1.addConstraint(Sketcher.Constraint("Horizontal", 38, 2, 41, 2))
sketch1.addConstraint(Sketcher.Constraint("Horizontal", 41, 2, 44, 2))
sketch1.addConstraint(Sketcher.Constraint("Horizontal", 44, 2, 47, 2))
sketch1.addConstraint(Sketcher.Constraint("Horizontal", 47, 2, 50, 2))
sketch1.addConstraint(Sketcher.Constraint("Horizontal", 50, 2, 53, 2))
sketch1.addConstraint(Sketcher.Constraint("Horizontal", 53, 2, 56, 2))
sketch1.addConstraint(Sketcher.Constraint("Horizontal", 56, 2, 59, 2))
sketch1.addConstraint(Sketcher.Constraint("Equal", 7, 10))
sketch1.addConstraint(Sketcher.Constraint("Equal", 10, 13))
sketch1.addConstraint(Sketcher.Constraint("Equal", 13, 16))
sketch1.addConstraint(Sketcher.Constraint("Equal", 16, 19))
sketch1.addConstraint(Sketcher.Constraint("Equal", 19, 22))
sketch1.addConstraint(Sketcher.Constraint("Equal", 22, 25))
sketch1.addConstraint(Sketcher.Constraint("Equal", 25, 28))
sketch1.addConstraint(Sketcher.Constraint("Equal", 28, 31))
sketch1.addConstraint(Sketcher.Constraint("DistanceX", 2, 2, 2, 1, Q("40 in")))
sketch1.addConstraint(Sketcher.Constraint("Radius", 5, Q("0.0400001 in")))
sketch1.addConstraint(Sketcher.Constraint("DistanceX", 5, 2, -1, 1, Q("18 in")))
sketch1.addConstraint(Sketcher.Constraint("DistanceY", 1, 1, 1, 2, Q("0.75 in")))
pad1 = body.newObject("PartDesign::Pad", "Pad")
pad1.Profile = sketch1
pad1.Length = Q("27.25 in")

sketch2 = body.newObject("Sketcher::SketchObject", "Sketch001")
sketch2.AttachmentSupport = (doc.getObject("XY_Plane"), [""])
sketch2.MapMode = "FlatFace"
add_polygon(sketch2, [(145, 48), (145, -90), (526, -90), (526, 48)])
add_polygon(sketch2, [(-526, 58), (-526, -137), (-145, -137), (-145, 58)])
sketch2.addConstraint(Sketcher.Constraint("Vertical", 0))
sketch2.addConstraint(Sketcher.Constraint("Horizontal", 1))
sketch2.addConstraint(Sketcher.Constraint("Vertical", 2))
sketch2.addConstraint(Sketcher.Constraint("Horizontal", 3))
sketch2.addConstraint(Sketcher.Constraint("Vertical", 4))
sketch2.addConstraint(Sketcher.Constraint("Horizontal", 5))
sketch2.addConstraint(Sketcher.Constraint("Vertical", 6))
sketch2.addConstraint(Sketcher.Constraint("Horizontal", 7))
sketch2.addConstraint(Sketcher.Constraint("Equal", 3, 5))
sketch2.addConstraint(Sketcher.Constraint("DistanceX", 1, 1, 1, 2, Q("15 in")))
sketch2.addConstraint(Sketcher.Constraint("DistanceX", -1, 1, 0, 2, Q("5.71875 in")))
sketch2.addConstraint(Sketcher.Constraint("DistanceX", 4, 2, -1, 1, Q("20.71875 in")))
sketch2.addConstraint(Sketcher.Constraint("DistanceY", 4, 2, 4, 1, Q("195.285798 mm")))
sketch2.addConstraint(Sketcher.Constraint("DistanceY", 0, 2, 0, 1, Q("137.227848 mm")))
sketch2.addConstraint(Sketcher.Constraint("DistanceY", -1, 1, 2, 2, Q("47.642301 mm")))
sketch2.addConstraint(Sketcher.Constraint("DistanceY", 4, 2, 0, 2, Q("47.501959 mm")))
pocket1 = body.newObject("PartDesign::Pocket", "Pocket")
pocket1.Profile = sketch2
pocket1.Length = Q("45 in")
pocket1.Reversed = True

sketch3 = body.newObject("Sketcher::SketchObject", "Sketch002")
sketch3.AttachmentSupport = (doc.getObject("XZ_Plane"), [""])
sketch3.MapMode = "FlatFace"
sketch3.addGeometry(Part.Circle(V(135.7, 616.7, 0), V(0, 0, 1), 0.8), False)
sketch3.addGeometry(Part.Circle(V(123, 604.8, 0), V(0, 0, 1), 0.8), False)
sketch3.addGeometry(Part.Circle(V(135.7, 592.9, 0), V(0, 0, 1), 0.8), False)
sketch3.addGeometry(Part.Circle(V(135.7, 99.2, 0), V(0, 0, 1), 0.8), False)
sketch3.addGeometry(Part.Circle(V(123, 87.3, 0), V(0, 0, 1), 0.8), False)
sketch3.addGeometry(Part.Circle(V(135.7, 75.4, 0), V(0, 0, 1), 0.8), False)
sketch3.addConstraint(Sketcher.Constraint("Equal", 0, 1))
sketch3.addConstraint(Sketcher.Constraint("Equal", 1, 2))
sketch3.addConstraint(Sketcher.Constraint("Equal", 2, 3))
sketch3.addConstraint(Sketcher.Constraint("Equal", 3, 4))
sketch3.addConstraint(Sketcher.Constraint("Equal", 4, 5))
sketch3.addConstraint(Sketcher.Constraint("Vertical", 0, 3, 2, 3))
sketch3.addConstraint(Sketcher.Constraint("Vertical", 2, 3, 3, 3))
sketch3.addConstraint(Sketcher.Constraint("Vertical", 1, 3, 4, 3))
sketch3.addConstraint(Sketcher.Constraint("Vertical", 3, 3, 5, 3))
sketch3.addConstraint(Sketcher.Constraint("Diameter", 0, Q("0.0625 in")))
sketch3.addConstraint(Sketcher.Constraint("DistanceX", 1, 3, 0, 3, Q("0.5 in")))
sketch3.addConstraint(Sketcher.Constraint("DistanceX", -1, 1, 0, 3, Q("5.34375 in")))
sketch3.addConstraint(Sketcher.Constraint("DistanceY", -1, 1, 0, 3, Q("24.28125 in")))
sketch3.addConstraint(Sketcher.Constraint("DistanceY", -1, 1, 1, 3, Q("23.8125 in")))
sketch3.addConstraint(Sketcher.Constraint("DistanceY", -1, 1, 2, 3, Q("23.34375 in")))
sketch3.addConstraint(Sketcher.Constraint("DistanceY", -1, 1, 3, 3, Q("3.90625 in")))
sketch3.addConstraint(Sketcher.Constraint("DistanceY", -1, 1, 4, 3, Q("3.4375 in")))
sketch3.addConstraint(Sketcher.Constraint("DistanceY", -1, 1, 5, 3, Q("2.96875 in")))
pocket2 = body.newObject("PartDesign::Pocket", "Pocket001")
pocket2.Profile = sketch3
pocket2.Length = Q("1 in")

doc.recompute()
